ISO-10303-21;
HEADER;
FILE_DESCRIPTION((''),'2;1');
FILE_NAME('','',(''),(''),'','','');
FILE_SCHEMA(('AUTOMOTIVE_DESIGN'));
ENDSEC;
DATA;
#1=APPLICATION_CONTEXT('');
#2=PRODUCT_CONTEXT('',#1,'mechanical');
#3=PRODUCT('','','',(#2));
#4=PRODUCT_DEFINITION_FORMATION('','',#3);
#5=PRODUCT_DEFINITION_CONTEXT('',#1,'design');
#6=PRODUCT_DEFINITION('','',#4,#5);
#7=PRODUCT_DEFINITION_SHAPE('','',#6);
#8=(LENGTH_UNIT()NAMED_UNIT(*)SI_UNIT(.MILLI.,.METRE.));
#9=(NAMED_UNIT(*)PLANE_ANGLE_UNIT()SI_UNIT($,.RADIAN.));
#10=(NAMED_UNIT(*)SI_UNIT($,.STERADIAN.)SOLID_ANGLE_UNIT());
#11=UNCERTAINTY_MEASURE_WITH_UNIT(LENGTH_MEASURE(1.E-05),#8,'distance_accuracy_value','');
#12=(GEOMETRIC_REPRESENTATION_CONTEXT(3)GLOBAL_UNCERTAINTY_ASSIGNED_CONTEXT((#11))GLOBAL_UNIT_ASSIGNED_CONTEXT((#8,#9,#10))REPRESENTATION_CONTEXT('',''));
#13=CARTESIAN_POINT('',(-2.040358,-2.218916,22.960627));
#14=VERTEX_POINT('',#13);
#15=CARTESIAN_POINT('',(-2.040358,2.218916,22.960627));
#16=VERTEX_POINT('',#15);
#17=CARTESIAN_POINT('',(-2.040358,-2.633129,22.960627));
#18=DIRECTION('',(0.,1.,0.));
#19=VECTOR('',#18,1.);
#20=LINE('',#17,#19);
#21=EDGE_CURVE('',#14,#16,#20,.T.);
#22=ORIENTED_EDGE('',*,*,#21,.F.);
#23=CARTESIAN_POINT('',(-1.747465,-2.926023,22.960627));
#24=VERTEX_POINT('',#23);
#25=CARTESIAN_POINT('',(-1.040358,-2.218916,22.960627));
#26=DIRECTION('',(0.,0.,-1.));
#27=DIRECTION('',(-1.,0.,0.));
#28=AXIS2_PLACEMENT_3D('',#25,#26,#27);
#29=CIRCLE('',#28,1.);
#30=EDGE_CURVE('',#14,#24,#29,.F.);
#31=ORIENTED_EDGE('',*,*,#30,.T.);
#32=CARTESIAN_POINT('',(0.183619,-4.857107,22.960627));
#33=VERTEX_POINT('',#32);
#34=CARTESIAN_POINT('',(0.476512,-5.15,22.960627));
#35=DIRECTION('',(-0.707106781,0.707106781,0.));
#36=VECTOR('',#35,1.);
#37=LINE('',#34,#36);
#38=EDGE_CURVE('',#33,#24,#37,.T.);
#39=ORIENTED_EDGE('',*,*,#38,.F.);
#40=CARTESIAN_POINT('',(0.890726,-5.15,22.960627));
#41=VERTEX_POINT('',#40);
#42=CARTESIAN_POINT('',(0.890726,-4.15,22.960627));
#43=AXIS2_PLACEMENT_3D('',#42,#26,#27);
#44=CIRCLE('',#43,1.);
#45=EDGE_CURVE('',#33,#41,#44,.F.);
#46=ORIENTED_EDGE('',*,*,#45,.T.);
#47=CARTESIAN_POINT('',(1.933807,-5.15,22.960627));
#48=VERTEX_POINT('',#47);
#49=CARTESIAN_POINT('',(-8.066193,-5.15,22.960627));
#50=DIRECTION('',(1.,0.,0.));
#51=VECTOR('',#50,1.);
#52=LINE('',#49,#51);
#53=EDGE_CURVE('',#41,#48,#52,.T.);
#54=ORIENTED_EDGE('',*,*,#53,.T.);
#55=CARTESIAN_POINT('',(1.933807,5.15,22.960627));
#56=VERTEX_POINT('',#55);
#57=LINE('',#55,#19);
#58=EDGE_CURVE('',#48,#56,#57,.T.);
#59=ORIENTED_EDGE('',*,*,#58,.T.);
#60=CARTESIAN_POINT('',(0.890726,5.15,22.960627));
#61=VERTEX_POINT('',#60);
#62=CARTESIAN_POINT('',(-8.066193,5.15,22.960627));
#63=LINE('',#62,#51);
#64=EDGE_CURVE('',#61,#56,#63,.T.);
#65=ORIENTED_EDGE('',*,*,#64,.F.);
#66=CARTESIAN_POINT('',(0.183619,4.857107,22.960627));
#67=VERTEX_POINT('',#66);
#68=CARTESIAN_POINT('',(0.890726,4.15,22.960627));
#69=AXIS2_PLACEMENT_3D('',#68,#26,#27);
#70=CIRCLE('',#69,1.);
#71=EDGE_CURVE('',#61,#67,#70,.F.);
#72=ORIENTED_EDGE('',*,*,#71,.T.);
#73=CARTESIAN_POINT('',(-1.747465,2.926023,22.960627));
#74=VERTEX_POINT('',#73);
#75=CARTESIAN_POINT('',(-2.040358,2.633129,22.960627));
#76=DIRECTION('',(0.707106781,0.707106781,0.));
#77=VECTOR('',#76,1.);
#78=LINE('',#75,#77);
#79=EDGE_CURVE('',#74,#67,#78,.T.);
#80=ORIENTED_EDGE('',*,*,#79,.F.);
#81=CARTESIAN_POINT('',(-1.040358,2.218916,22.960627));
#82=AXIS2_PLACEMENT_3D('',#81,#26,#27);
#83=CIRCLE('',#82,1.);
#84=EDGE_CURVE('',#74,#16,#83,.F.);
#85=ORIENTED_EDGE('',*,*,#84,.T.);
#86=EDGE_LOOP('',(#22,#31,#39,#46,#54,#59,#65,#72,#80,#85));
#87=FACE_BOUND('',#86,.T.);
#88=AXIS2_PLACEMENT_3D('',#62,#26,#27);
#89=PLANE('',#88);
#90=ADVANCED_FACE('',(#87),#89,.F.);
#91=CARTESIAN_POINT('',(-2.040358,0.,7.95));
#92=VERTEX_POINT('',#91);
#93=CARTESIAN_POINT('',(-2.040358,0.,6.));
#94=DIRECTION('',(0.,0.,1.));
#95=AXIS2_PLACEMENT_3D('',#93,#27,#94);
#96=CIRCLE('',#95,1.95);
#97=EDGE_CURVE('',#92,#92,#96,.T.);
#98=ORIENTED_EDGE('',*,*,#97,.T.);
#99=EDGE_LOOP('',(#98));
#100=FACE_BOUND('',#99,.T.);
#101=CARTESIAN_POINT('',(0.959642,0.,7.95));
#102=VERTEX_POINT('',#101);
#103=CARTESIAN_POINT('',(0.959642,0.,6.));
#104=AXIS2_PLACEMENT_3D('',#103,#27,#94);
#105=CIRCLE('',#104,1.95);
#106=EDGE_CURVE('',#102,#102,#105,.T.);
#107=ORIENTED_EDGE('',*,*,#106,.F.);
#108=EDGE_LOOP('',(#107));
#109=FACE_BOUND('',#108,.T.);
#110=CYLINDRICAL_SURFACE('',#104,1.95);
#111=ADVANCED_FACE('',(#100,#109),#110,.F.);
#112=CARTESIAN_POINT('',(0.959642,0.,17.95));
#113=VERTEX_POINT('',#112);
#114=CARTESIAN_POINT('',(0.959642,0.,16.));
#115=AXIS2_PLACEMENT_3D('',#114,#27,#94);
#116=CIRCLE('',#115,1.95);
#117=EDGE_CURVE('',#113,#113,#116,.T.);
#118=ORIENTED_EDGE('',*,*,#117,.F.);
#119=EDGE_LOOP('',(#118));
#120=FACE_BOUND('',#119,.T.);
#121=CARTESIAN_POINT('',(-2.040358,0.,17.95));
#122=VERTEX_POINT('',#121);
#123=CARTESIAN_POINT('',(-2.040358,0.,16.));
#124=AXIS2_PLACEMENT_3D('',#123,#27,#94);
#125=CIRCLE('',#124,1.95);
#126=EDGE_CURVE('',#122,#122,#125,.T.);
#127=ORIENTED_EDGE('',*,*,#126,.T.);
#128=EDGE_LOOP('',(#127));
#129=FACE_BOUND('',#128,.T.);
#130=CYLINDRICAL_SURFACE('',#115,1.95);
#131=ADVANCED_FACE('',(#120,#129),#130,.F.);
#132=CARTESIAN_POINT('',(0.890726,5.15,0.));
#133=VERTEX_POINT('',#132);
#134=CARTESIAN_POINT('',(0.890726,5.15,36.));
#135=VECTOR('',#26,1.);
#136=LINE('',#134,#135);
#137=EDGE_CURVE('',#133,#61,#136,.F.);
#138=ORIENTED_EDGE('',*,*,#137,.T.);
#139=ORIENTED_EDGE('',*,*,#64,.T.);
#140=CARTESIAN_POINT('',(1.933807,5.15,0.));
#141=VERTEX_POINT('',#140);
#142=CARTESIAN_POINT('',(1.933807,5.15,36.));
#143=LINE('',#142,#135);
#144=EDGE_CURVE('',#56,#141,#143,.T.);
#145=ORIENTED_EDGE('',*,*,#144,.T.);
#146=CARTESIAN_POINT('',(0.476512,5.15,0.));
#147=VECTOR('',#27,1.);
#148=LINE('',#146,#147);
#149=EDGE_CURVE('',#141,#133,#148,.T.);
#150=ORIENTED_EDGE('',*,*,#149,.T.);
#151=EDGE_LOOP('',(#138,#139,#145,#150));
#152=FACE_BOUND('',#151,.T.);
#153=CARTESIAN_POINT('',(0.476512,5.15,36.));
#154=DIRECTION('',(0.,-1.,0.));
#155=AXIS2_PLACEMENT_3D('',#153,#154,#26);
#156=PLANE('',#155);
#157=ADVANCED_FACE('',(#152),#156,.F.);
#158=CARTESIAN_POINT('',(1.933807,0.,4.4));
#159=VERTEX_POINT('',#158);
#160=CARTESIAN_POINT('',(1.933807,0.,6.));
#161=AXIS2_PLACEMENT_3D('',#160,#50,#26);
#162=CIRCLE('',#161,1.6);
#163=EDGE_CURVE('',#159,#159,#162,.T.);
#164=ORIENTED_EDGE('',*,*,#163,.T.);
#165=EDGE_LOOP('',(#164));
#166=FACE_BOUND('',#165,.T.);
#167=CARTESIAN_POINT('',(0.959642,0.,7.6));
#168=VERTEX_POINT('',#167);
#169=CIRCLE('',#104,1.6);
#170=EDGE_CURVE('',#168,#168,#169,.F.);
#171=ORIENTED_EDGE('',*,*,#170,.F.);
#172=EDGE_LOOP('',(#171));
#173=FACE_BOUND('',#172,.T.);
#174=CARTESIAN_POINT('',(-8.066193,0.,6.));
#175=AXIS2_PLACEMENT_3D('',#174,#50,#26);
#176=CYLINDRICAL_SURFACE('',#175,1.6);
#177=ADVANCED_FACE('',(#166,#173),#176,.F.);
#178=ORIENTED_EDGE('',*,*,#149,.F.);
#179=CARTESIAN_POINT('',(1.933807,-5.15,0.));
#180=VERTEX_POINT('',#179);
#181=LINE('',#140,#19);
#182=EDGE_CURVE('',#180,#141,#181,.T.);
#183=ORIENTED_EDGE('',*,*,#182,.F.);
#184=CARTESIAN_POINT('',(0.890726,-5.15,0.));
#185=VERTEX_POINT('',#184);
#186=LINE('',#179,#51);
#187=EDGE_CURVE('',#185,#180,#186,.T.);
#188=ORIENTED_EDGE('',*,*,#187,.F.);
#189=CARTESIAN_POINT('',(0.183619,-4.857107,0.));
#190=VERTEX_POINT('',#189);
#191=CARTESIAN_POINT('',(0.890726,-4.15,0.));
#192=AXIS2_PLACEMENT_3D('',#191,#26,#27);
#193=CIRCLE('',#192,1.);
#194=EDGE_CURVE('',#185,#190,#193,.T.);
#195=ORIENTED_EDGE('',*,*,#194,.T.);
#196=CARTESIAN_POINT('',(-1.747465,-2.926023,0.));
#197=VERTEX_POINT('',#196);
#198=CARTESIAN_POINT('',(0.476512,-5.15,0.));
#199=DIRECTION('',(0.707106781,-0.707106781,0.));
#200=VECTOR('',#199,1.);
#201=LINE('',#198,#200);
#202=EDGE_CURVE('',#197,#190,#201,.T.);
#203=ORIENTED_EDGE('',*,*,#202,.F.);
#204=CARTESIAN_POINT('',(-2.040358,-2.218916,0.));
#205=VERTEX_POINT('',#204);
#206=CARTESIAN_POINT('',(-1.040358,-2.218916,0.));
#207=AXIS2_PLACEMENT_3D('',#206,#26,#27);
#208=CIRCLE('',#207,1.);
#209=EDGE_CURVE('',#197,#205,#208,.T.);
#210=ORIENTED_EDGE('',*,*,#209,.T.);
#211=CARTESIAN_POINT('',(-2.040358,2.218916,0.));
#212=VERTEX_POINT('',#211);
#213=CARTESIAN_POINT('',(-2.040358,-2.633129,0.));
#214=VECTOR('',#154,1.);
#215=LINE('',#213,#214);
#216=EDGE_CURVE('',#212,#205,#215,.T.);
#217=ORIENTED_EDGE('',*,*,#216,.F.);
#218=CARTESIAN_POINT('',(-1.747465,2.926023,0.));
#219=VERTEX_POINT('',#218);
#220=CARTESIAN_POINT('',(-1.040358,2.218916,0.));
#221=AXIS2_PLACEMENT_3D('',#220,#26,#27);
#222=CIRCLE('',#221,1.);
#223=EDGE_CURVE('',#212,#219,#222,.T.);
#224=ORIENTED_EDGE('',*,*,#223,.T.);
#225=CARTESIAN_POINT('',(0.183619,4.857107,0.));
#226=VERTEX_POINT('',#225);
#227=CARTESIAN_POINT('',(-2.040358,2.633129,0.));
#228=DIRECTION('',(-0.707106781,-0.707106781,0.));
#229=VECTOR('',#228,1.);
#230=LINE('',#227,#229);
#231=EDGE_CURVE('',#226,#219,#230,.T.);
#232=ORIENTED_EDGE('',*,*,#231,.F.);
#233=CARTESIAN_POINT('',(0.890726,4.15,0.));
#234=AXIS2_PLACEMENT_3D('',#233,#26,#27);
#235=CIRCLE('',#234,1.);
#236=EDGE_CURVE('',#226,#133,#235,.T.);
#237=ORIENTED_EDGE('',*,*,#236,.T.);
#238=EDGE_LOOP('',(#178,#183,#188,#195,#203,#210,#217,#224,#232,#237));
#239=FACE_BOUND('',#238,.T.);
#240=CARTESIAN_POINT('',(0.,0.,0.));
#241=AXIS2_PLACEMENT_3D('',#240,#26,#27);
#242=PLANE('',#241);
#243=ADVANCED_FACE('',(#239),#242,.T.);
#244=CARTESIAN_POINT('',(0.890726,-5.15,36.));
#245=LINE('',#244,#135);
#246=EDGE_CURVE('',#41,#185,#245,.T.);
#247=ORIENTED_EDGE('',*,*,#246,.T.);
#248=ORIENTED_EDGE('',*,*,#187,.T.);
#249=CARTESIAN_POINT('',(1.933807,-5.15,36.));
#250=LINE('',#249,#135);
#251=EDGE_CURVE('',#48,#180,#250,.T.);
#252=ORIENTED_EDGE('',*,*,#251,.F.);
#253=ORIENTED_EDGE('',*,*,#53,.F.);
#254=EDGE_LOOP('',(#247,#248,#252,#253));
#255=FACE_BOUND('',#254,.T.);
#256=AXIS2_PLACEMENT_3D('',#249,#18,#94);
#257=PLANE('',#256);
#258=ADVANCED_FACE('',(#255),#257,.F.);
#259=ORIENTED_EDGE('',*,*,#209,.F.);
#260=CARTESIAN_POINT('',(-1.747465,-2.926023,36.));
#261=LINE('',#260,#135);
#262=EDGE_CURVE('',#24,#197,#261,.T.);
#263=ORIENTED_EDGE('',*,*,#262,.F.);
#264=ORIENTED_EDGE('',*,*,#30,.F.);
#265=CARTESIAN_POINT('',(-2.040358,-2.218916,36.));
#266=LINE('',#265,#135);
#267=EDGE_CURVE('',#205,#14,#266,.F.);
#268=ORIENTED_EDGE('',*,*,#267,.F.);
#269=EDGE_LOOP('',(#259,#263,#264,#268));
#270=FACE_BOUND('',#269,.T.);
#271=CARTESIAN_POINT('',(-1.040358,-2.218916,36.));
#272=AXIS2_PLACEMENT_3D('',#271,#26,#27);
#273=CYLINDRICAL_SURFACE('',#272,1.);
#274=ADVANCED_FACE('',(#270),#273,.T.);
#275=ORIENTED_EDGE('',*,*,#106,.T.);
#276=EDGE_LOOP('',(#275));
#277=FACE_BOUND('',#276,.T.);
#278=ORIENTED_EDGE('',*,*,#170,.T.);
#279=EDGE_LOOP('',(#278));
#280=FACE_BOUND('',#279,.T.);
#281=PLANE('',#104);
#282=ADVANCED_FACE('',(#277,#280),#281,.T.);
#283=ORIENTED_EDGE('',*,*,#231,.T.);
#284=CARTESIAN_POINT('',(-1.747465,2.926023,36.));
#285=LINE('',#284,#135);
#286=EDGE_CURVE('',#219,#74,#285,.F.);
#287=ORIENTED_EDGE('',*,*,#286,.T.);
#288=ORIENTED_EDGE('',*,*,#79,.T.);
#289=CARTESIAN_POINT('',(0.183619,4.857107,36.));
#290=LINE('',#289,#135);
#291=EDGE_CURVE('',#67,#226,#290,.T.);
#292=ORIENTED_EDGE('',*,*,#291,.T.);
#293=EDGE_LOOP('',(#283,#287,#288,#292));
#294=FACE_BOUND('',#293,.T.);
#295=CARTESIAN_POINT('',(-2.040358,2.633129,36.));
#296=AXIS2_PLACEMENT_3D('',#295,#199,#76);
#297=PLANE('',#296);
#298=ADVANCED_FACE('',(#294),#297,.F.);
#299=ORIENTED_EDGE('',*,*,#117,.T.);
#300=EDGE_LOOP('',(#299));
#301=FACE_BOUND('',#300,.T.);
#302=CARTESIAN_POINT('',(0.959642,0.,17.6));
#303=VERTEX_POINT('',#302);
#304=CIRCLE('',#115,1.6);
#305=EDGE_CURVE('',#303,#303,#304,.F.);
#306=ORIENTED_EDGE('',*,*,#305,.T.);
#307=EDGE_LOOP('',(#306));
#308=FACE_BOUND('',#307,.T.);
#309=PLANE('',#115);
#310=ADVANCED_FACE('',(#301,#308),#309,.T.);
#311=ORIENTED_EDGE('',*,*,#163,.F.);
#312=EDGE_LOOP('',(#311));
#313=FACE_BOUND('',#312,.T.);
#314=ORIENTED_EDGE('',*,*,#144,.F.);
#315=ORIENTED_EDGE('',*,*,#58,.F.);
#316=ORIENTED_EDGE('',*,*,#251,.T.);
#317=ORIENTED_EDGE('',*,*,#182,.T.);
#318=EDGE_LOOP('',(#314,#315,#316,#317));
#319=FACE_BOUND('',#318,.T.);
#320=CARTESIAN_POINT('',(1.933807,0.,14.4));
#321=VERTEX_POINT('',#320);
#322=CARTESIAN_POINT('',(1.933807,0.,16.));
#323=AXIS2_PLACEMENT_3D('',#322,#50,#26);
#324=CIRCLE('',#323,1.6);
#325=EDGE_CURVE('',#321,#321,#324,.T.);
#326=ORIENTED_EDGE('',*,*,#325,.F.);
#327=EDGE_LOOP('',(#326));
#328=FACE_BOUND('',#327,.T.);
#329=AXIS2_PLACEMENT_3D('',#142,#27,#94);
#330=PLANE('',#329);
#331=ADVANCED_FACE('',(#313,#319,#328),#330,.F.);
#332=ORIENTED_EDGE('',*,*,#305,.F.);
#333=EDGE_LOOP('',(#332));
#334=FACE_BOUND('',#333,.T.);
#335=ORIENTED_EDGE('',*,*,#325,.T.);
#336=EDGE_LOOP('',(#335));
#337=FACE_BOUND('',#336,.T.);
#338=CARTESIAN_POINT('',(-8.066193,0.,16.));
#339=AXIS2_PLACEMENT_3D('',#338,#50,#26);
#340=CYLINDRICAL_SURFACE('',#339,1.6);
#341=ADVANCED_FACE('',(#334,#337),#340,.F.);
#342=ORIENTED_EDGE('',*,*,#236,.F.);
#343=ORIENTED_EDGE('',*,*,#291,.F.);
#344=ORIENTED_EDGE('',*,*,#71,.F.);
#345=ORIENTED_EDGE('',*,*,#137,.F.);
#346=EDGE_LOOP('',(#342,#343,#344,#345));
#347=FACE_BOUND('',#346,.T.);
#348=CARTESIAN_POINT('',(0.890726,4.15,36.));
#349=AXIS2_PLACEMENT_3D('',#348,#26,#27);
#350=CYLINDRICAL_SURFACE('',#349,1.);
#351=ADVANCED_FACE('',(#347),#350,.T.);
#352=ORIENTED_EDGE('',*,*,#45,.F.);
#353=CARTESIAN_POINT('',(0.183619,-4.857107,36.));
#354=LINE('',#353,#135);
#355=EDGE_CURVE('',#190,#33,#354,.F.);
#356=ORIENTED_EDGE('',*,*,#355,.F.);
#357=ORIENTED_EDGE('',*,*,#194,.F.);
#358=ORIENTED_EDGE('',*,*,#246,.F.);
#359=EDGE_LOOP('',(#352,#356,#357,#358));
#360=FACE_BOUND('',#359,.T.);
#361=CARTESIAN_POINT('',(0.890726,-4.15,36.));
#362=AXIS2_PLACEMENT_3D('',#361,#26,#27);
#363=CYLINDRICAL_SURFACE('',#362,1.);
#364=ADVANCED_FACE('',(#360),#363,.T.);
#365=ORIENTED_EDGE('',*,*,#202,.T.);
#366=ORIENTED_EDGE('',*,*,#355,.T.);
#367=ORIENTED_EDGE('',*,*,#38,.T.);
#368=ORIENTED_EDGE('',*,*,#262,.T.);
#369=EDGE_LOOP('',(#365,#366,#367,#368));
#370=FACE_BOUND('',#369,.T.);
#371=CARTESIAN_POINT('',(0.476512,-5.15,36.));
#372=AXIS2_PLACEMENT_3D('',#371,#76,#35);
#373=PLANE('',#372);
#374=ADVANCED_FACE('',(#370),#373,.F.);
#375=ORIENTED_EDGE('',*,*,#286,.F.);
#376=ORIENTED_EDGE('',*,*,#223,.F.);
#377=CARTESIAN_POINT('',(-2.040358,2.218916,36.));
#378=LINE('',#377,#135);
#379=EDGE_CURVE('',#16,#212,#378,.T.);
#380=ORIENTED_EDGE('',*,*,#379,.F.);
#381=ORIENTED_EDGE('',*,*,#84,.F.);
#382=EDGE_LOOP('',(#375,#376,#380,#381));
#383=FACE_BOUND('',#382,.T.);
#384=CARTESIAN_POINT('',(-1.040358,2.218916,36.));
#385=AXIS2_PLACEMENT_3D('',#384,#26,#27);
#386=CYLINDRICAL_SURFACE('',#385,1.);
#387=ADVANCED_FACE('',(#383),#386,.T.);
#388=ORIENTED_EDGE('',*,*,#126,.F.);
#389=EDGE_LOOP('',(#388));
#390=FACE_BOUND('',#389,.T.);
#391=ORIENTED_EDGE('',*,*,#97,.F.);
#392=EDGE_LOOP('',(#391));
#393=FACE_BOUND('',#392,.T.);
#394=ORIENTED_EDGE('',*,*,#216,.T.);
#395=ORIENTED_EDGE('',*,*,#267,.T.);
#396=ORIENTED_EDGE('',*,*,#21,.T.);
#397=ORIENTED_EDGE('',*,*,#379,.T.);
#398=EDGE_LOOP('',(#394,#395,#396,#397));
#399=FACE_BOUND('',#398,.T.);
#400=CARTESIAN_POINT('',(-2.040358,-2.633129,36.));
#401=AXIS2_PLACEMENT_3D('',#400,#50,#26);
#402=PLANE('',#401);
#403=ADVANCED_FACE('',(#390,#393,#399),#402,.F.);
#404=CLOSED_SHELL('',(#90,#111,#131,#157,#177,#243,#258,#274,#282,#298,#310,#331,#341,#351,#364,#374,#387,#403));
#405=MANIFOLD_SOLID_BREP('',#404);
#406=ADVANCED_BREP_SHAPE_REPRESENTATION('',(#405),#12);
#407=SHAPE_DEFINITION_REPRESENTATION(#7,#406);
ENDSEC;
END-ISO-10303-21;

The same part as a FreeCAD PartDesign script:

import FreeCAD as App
import Part
import Sketcher
Q = App.Units.Quantity


def edges_at(feature, points):
    """Names of the edges that pass closest to the given points."""
    edges = feature.Shape.Edges
    near = lambda p: min(range(len(edges)), key=lambda i: edges[i].distToShape(Part.Vertex(*p))[0])
    return sorted({f"Edge{near(p) + 1}" for p in points})

doc = App.newDocument("Part")
body = doc.addObject("PartDesign::Body", "Body")

sketch1 = doc.addObject("Sketcher::SketchObject", "Sketch")
body.addObject(sketch1)
sketch1.AttachmentSupport = (doc.XY_Plane, [""])
sketch1.MapMode = "FlatFace"
sketch1.addGeometry([
    Part.LineSegment(App.Vector(1.933807, -5.15, 0), App.Vector(1.933807, 5.15, 0)),
    Part.LineSegment(App.Vector(1.933807, 5.15, 0), App.Vector(0.476512, 5.15, 0)),
    Part.LineSegment(App.Vector(0.476512, 5.15, 0), App.Vector(-2.040358, 2.633129, 0)),
    Part.LineSegment(App.Vector(-2.040358, 2.633129, 0), App.Vector(-2.040358, -2.633129, 0)),
    Part.LineSegment(App.Vector(-2.040358, -2.633129, 0), App.Vector(0.476512, -5.15, 0)),
    Part.LineSegment(App.Vector(0.476512, -5.15, 0), App.Vector(1.933807, -5.15, 0)),
], False)
sketch1.addConstraint([
    Sketcher.Constraint("Coincident", 0, 2, 1, 1),
    Sketcher.Constraint("Coincident", 1, 2, 2, 1),
    Sketcher.Constraint("Coincident", 2, 2, 3, 1),
    Sketcher.Constraint("Coincident", 3, 2, 4, 1),
    Sketcher.Constraint("Coincident", 4, 2, 5, 1),
    Sketcher.Constraint("Coincident", 5, 2, 0, 1),
    Sketcher.Constraint("Vertical", 0),
    Sketcher.Constraint("Horizontal", 1),
    Sketcher.Constraint("Vertical", 3),
    Sketcher.Constraint("Horizontal", 5),
    Sketcher.Constraint("Symmetric", 1, 2, 4, 2, -1),
    Sketcher.Constraint("Perpendicular", 2, 4),
    Sketcher.Constraint("Equal", 2, 4),
    Sketcher.Constraint("DistanceY", 0, 1, 0, 2, Q("10.3 mm")),
    Sketcher.Constraint("DistanceY", 3, 2, 3, 1, Q("5.266259 mm")),
    Sketcher.Constraint("DistanceX", 1, 2, 1, 1, Q("1.457294 mm")),
    Sketcher.Constraint("DistanceX", 2, 2, -1, 1, Q("2.040358 mm")),
])
pad1 = doc.addObject("PartDesign::Pad", "Pad")
body.addObject(pad1)
pad1.Profile = sketch1
pad1.Length = 36

sketch2 = doc.addObject("Sketcher::SketchObject", "Sketch001")
body.addObject(sketch2)
sketch2.AttachmentSupport = (doc.YZ_Plane, [""])
sketch2.MapMode = "FlatFace"
sketch2.AttachmentOffset = App.Placement(App.Vector(0, 0, 1.933807), App.Rotation())
sketch2.addGeometry([
    Part.Circle(App.Vector(0, 16, 0), App.Vector(0, 0, 1), 1.6),
    Part.Circle(App.Vector(0, 31, 0), App.Vector(0, 0, 1), 1.6),
    Part.Circle(App.Vector(0, 6, 0), App.Vector(0, 0, 1), 1.6),
], False)
sketch2.addConstraint([
    Sketcher.Constraint("Equal", 0, 1),
    Sketcher.Constraint("Equal", 1, 2),
    Sketcher.Constraint("PointOnObject", 0, 3, -2),
    Sketcher.Constraint("PointOnObject", 1, 3, -2),
    Sketcher.Constraint("PointOnObject", 2, 3, -2),
    Sketcher.Constraint("Diameter", 0, Q("3.2 mm")),
    Sketcher.Constraint("DistanceY", -1, 1, 0, 3, Q("16 mm")),
    Sketcher.Constraint("DistanceY", -1, 1, 1, 3, Q("31 mm")),
    Sketcher.Constraint("DistanceY", -1, 1, 2, 3, Q("6 mm")),
])
pocket1 = doc.addObject("PartDesign::Pocket", "Pocket")
body.addObject(pocket1)
pocket1.Profile = sketch2
pocket1.Length = 10

sketch3 = doc.addObject("Sketcher::SketchObject", "Sketch002")
body.addObject(sketch3)
sketch3.AttachmentSupport = (doc.YZ_Plane, [""])
sketch3.MapMode = "FlatFace"
sketch3.AttachmentOffset = App.Placement(App.Vector(0, 0, -2.040358), App.Rotation())
sketch3.addGeometry([
    Part.Circle(App.Vector(0, 16, 0), App.Vector(0, 0, 1), 1.95),
    Part.Circle(App.Vector(0, 31, 0), App.Vector(0, 0, 1), 1.95),
    Part.Circle(App.Vector(0, 6, 0), App.Vector(0, 0, 1), 1.95),
], False)
sketch3.addConstraint([
    Sketcher.Constraint("Equal", 0, 1),
    Sketcher.Constraint("Equal", 1, 2),
    Sketcher.Constraint("PointOnObject", 0, 3, -2),
    Sketcher.Constraint("PointOnObject", 1, 3, -2),
    Sketcher.Constraint("PointOnObject", 2, 3, -2),
    Sketcher.Constraint("Diameter", 0, Q("3.9 mm")),
    Sketcher.Constraint("DistanceY", -1, 1, 0, 3, Q("16 mm")),
    Sketcher.Constraint("DistanceY", -1, 1, 1, 3, Q("31 mm")),
    Sketcher.Constraint("DistanceY", -1, 1, 2, 3, Q("6 mm")),
])
pocket2 = doc.addObject("PartDesign::Pocket", "Pocket001")
body.addObject(pocket2)
pocket2.Profile = sketch3
pocket2.Length = 3
pocket2.Reversed = True
doc.recompute()

fillet = doc.addObject("PartDesign::Fillet", "Fillet")
body.addObject(fillet)
fillet.Base = (pocket2, edges_at(pocket2, [
    (0.477, 5.15, 18),
    (0.477, -5.15, 18),
    (-2.04, 2.633, 18),
    (-2.04, -2.633, 18),
]))
fillet.Radius = 1

sketch4 = doc.addObject("Sketcher::SketchObject", "Sketch003")
body.addObject(sketch4)
sketch4.AttachmentSupport = (doc.YZ_Plane, [""])
sketch4.MapMode = "FlatFace"
sketch4.AttachmentOffset = App.Placement(App.Vector(0, 0, 1.933807), App.Rotation())
sketch4.addGeometry([
    Part.LineSegment(App.Vector(5.15, 36, 0), App.Vector(-5.15, 36, 0)),
    Part.LineSegment(App.Vector(-5.15, 36, 0), App.Vector(-5.15, 28, 0)),
    Part.LineSegment(App.Vector(-5.15, 28, 0), App.Vector(5.15, 28, 0)),
    Part.LineSegment(App.Vector(5.15, 28, 0), App.Vector(5.15, 36, 0)),
], False)
sketch4.addConstraint([
    Sketcher.Constraint("Coincident", 0, 2, 1, 1),
    Sketcher.Constraint("Coincident", 1, 2, 2, 1),
    Sketcher.Constraint("Coincident", 2, 2, 3, 1),
    Sketcher.Constraint("Coincident", 3, 2, 0, 1),
    Sketcher.Constraint("Horizontal", 0),
    Sketcher.Constraint("Vertical", 1),
    Sketcher.Constraint("Horizontal", 2),
    Sketcher.Constraint("Vertical", 3),
    Sketcher.Constraint("DistanceY", 1, 2, 1, 1, Q("8 mm")),
    Sketcher.Constraint("DistanceX", 0, 2, 0, 1, Q("10.3 mm")),
    Sketcher.Constraint("DistanceY", -1, 1, 0, 2, Q("36 mm")),
    Sketcher.Constraint("DistanceX", 0, 2, -1, 1, Q("5.15 mm")),
])
pocket3 = doc.addObject("PartDesign::Pocket", "Pocket002")
body.addObject(pocket3)
pocket3.Profile = sketch4
pocket3.Length = 10

sketch5 = doc.addObject("Sketcher::SketchObject", "Sketch004")
body.addObject(sketch5)
sketch5.AttachmentSupport = (doc.YZ_Plane, [""])
sketch5.MapMode = "FlatFace"
sketch5.AttachmentOffset = App.Placement(App.Vector(0, 0, 1.933807), App.Rotation())
sketch5.addGeometry([
    Part.LineSegment(App.Vector(5.15, 28, 0), App.Vector(-5.15, 28, 0)),
    Part.LineSegment(App.Vector(-5.15, 28, 0), App.Vector(-5.15, 22.960627, 0)),
    Part.LineSegment(App.Vector(-5.15, 22.960627, 0), App.Vector(5.15, 22.960627, 0)),
    Part.LineSegment(App.Vector(5.15, 22.960627, 0), App.Vector(5.15, 28, 0)),
], False)
sketch5.addConstraint([
    Sketcher.Constraint("Coincident", 0, 2, 1, 1),
    Sketcher.Constraint("Coincident", 1, 2, 2, 1),
    Sketcher.Constraint("Coincident", 2, 2, 3, 1),
    Sketcher.Constraint("Coincident", 3, 2, 0, 1),
    Sketcher.Constraint("Horizontal", 0),
    Sketcher.Constraint("Vertical", 1),
    Sketcher.Constraint("Horizontal", 2),
    Sketcher.Constraint("Vertical", 3),
    Sketcher.Constraint("DistanceX", 0, 2, 0, 1, Q("10.3 mm")),
    Sketcher.Constraint("DistanceY", -1, 1, 0, 2, Q("28 mm")),
    Sketcher.Constraint("DistanceX", 0, 2, -1, 1, Q("5.15 mm")),
    Sketcher.Constraint("DistanceY", 1, 2, 1, 1, Q("5.039373 mm")),
])
pocket4 = doc.addObject("PartDesign::Pocket", "Pocket003")
body.addObject(pocket4)
pocket4.Profile = sketch5
pocket4.Length = 10

doc.recompute()
